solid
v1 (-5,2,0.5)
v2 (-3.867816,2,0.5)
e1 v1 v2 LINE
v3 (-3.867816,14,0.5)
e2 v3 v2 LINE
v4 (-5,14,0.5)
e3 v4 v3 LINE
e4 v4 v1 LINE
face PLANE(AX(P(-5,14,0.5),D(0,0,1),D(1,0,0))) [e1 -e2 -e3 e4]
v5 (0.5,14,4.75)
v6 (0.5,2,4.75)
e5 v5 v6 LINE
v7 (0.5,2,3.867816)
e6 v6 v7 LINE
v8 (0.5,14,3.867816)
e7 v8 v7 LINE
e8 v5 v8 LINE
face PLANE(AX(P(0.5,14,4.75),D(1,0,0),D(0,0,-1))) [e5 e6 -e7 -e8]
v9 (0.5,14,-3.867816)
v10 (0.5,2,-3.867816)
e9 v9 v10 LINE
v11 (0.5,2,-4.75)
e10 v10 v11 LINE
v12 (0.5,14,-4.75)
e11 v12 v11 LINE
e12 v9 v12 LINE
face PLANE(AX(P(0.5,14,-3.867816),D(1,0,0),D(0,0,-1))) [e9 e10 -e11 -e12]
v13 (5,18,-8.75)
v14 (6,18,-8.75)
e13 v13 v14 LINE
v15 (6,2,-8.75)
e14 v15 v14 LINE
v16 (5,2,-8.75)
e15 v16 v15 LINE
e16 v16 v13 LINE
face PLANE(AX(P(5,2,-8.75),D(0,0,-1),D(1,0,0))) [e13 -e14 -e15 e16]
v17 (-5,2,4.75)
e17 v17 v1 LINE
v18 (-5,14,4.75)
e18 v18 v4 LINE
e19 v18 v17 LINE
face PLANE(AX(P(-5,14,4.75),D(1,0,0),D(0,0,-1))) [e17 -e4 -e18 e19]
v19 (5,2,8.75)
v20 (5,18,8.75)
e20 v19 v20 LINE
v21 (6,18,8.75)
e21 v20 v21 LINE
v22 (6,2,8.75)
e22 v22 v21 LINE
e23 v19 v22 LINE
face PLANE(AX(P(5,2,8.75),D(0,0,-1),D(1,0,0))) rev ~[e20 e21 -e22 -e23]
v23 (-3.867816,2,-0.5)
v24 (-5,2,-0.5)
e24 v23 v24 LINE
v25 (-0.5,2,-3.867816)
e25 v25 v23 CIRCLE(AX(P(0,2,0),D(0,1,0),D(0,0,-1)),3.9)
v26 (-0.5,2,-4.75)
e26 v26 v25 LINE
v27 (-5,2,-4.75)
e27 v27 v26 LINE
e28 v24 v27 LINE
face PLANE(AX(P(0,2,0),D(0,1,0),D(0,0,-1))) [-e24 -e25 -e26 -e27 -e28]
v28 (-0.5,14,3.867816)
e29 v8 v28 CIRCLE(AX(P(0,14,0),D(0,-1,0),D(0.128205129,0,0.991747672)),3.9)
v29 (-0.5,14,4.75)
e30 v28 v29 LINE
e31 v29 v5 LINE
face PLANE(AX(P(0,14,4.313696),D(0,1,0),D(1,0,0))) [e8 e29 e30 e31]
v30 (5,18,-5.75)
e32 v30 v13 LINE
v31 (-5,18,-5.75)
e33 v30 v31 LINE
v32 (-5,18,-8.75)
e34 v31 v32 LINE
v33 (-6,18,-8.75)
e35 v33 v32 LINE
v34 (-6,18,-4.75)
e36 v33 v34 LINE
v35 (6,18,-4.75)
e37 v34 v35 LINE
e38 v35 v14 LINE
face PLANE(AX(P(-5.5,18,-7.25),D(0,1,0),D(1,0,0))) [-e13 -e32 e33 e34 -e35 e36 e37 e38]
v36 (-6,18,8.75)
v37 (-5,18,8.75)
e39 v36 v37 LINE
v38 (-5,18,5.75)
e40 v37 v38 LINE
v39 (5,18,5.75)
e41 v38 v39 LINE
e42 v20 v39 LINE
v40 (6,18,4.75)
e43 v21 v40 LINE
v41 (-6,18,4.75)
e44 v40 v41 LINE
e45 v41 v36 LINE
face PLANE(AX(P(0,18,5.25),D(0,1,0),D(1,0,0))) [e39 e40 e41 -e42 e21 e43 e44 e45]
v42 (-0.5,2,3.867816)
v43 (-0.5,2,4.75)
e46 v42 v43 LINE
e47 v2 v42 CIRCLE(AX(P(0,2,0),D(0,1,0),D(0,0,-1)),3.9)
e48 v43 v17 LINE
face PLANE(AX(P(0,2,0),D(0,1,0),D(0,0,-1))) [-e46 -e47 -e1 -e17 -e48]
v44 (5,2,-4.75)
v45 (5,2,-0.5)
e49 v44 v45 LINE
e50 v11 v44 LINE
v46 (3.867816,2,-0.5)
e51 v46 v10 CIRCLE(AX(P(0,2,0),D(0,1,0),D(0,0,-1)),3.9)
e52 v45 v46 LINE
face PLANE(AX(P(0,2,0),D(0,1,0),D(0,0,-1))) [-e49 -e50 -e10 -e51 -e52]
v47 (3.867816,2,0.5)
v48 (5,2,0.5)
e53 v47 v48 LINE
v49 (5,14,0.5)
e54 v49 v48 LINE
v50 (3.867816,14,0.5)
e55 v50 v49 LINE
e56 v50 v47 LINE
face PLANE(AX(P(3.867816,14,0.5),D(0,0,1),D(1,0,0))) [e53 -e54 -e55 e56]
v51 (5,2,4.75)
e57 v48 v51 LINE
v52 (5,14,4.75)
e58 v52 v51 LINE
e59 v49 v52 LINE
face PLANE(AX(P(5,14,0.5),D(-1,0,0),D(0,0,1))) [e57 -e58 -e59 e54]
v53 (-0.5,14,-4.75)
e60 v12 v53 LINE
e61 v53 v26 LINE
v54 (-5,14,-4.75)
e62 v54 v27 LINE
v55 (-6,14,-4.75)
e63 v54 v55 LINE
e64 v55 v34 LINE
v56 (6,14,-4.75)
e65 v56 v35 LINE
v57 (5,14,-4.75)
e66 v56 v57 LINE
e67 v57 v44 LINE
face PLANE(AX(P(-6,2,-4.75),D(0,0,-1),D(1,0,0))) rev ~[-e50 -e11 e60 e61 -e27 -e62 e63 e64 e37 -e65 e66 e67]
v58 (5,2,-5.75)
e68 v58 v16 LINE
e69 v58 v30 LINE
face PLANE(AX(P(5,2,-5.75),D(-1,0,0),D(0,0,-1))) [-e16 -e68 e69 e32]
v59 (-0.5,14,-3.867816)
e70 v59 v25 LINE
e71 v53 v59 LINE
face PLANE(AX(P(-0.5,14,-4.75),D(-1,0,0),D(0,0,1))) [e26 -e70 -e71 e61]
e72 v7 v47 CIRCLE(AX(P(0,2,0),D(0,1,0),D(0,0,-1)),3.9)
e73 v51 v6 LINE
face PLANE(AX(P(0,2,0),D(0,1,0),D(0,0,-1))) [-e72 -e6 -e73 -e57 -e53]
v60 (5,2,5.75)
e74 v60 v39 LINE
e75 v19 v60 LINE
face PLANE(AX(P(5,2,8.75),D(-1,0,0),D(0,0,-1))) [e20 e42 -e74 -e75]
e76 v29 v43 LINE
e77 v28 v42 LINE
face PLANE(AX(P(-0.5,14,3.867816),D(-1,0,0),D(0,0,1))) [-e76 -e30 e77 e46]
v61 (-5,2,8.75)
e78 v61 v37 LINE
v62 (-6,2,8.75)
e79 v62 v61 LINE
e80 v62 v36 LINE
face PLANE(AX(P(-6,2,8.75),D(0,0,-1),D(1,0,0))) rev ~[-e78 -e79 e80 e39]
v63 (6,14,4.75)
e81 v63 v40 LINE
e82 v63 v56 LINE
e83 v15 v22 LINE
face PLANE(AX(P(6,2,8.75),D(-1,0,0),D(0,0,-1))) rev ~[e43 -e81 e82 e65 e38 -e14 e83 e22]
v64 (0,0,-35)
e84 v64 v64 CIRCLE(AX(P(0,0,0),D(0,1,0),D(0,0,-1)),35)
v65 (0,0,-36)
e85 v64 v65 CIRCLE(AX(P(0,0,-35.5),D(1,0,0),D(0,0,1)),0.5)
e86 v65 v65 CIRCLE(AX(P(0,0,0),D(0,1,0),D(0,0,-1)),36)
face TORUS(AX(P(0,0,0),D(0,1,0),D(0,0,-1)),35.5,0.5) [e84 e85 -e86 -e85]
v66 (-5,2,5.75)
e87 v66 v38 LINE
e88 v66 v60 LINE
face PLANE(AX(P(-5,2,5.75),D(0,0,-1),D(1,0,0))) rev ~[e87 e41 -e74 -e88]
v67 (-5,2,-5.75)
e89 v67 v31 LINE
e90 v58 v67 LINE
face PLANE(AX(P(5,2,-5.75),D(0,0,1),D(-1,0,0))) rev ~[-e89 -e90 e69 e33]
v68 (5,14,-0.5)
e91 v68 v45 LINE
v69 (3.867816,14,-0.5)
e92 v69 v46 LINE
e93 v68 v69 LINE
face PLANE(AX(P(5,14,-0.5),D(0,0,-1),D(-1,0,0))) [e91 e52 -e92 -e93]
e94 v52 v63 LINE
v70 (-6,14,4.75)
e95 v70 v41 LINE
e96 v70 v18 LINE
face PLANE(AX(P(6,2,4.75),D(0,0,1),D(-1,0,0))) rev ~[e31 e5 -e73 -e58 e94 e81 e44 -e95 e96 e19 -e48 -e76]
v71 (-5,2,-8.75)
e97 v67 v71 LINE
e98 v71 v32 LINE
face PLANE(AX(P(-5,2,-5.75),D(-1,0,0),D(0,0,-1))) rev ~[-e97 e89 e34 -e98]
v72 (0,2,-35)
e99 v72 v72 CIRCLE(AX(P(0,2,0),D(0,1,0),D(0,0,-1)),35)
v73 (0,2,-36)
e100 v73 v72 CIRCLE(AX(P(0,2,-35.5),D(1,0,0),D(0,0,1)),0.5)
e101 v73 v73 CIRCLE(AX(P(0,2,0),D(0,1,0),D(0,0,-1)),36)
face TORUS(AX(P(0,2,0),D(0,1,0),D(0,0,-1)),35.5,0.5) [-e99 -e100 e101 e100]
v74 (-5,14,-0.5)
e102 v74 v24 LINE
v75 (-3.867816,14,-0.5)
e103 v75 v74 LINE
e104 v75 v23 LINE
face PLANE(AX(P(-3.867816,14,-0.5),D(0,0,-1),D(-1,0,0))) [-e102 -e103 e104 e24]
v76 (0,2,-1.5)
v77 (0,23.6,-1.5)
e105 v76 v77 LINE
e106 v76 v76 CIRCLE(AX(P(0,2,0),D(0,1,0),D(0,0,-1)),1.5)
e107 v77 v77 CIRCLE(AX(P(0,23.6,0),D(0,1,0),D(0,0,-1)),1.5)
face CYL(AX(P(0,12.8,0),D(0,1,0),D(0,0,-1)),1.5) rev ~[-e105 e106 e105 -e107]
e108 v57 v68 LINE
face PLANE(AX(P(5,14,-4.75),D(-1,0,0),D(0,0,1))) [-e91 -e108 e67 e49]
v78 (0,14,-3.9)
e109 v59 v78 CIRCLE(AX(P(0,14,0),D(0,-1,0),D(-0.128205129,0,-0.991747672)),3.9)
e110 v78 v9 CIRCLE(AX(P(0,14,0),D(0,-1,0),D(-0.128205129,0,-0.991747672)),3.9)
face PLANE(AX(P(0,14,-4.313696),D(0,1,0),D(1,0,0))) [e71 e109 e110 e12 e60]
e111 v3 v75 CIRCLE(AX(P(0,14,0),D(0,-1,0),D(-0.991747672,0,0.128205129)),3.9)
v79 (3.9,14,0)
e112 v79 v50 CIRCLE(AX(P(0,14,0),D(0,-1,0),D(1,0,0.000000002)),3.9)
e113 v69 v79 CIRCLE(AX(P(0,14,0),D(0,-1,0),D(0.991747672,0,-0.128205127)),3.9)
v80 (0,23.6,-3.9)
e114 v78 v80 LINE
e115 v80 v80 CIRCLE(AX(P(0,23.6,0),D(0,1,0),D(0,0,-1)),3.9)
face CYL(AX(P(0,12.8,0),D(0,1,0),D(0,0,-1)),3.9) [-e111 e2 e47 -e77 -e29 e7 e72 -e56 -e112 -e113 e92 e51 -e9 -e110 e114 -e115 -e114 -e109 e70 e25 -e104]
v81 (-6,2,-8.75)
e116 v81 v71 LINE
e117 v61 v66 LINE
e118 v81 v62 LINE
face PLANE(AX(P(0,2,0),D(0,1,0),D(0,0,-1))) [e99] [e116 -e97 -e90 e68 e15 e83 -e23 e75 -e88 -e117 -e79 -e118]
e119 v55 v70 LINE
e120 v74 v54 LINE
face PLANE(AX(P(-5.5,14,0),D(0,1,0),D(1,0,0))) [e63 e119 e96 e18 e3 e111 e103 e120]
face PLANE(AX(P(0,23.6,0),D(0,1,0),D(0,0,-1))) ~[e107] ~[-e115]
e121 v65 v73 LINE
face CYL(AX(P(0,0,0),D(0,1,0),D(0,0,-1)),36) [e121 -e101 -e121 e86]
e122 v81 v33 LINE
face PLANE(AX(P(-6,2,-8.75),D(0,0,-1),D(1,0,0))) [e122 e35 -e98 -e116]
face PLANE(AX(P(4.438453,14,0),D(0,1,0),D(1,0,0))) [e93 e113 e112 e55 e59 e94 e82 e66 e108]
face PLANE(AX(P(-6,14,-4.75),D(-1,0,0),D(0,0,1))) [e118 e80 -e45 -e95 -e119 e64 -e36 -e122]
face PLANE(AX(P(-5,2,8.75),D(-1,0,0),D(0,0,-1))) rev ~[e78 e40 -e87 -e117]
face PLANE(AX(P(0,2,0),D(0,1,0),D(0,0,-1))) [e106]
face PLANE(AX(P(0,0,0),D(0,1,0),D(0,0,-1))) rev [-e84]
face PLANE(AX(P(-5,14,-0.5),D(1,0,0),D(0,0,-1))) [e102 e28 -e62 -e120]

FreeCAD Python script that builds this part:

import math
import FreeCAD as App
import Part
import Sketcher

V = App.Vector


def add_polygon(sketch, points):
    """Adds a closed chain of lines whose ends are joined by coincident constraints."""
    first, n = sketch.GeometryCount, len(points)
    for a, b in zip(points, points[1:] + points[:1]):
        sketch.addGeometry(Part.LineSegment(App.Vector(*a, 0), App.Vector(*b, 0)), False)
    for i in range(n):
        sketch.addConstraint(Sketcher.Constraint("Coincident", first + i, 2, first + (i + 1) % n, 1))

doc = App.newDocument("Part")
body = doc.addObject("PartDesign::Body", "Body")

sketch1 = body.newObject("Sketcher::SketchObject", "Sketch")
sketch1.AttachmentSupport = (doc.getObject("XY_Plane"), [""])
sketch1.MapMode = "FlatFace"
sketch1.addGeometry(Part.LineSegment(V(1.5, 23.6, 0), V(1.5, 2, 0)), False)
sketch1.addGeometry(Part.LineSegment(V(1.5, 2, 0), V(0, 2, 0)), False)
sketch1.addGeometry(Part.LineSegment(V(0, 2, 0), V(0, 0, 0)), False)
sketch1.addGeometry(Part.LineSegment(V(0, 0, 0), V(35, 0, 0)), False)
sketch1.addGeometry(Part.ArcOfCircle(Part.Circle(V(35.5, 0, 0), V(0, 0, 1), 0.5), math.radians(180), math.radians(360)), False)
sketch1.addGeometry(Part.LineSegment(V(36, 0, 0), V(36, 2, 0)), False)
sketch1.addGeometry(Part.ArcOfCircle(Part.Circle(V(35.5, 2, 0), V(0, 0, 1), 0.5), math.radians(0), math.radians(180)), False)
sketch1.addGeometry(Part.LineSegment(V(35, 2, 0), V(3.9, 2, 0)), False)
sketch1.addGeometry(Part.LineSegment(V(3.9, 2, 0), V(3.9, 23.6, 0)), False)
sketch1.addGeometry(Part.LineSegment(V(3.9, 23.6, 0), V(1.5, 23.6, 0)), False)
sketch1.addConstraint(Sketcher.Constraint("Coincident", 0, 2, 1, 1))
sketch1.addConstraint(Sketcher.Constraint("Coincident", 1, 2, 2, 1))
sketch1.addConstraint(Sketcher.Constraint("Coincident", 2, 2, 3, 1))
sketch1.addConstraint(Sketcher.Constraint("Coincident", 3, 2, 4, 1))
sketch1.addConstraint(Sketcher.Constraint("Tangent", 4, 2, 5, 1))
sketch1.addConstraint(Sketcher.Constraint("Tangent", 5, 2, 6, 1))
sketch1.addConstraint(Sketcher.Constraint("Coincident", 6, 2, 7, 1))
sketch1.addConstraint(Sketcher.Constraint("Coincident", 7, 2, 8, 1))
sketch1.addConstraint(Sketcher.Constraint("Coincident", 8, 2, 9, 1))
sketch1.addConstraint(Sketcher.Constraint("Coincident", 9, 2, 0, 1))
sketch1.addConstraint(Sketcher.Constraint("Vertical", 0))
sketch1.addConstraint(Sketcher.Constraint("Horizontal", 1))
sketch1.addConstraint(Sketcher.Constraint("Vertical", 2))
sketch1.addConstraint(Sketcher.Constraint("Horizontal", 3))
sketch1.addConstraint(Sketcher.Constraint("Vertical", 5))
sketch1.addConstraint(Sketcher.Constraint("Horizontal", 7))
sketch1.addConstraint(Sketcher.Constraint("Vertical", 8))
sketch1.addConstraint(Sketcher.Constraint("Horizontal", 9))
sketch1.addConstraint(Sketcher.Constraint("Coincident", 2, 2, -1, 1))
sketch1.addConstraint(Sketcher.Constraint("Equal", 4, 6))
sketch1.addConstraint(Sketcher.Constraint("PointOnObject", 4, 3, -1))
sketch1.addConstraint(Sketcher.Constraint("Horizontal", 6, 3, 0, 2))
sketch1.addConstraint(Sketcher.Constraint("Horizontal", 5, 2, 6, 2))
sketch1.addConstraint(Sketcher.Constraint("Radius", 4, 0.5))
sketch1.addConstraint(Sketcher.Constraint("DistanceX", 3, 1, 3, 2, 35.0))
sketch1.addConstraint(Sketcher.Constraint("DistanceY", 2, 2, 2, 1, 2.0))
sketch1.addConstraint(Sketcher.Constraint("DistanceX", 1, 2, 1, 1, 1.5))
sketch1.addConstraint(Sketcher.Constraint("DistanceX", 7, 2, 7, 1, 31.1))
sketch1.addConstraint(Sketcher.Constraint("DistanceY", 0, 2, 0, 1, 21.6))
revolution = body.newObject("PartDesign::Revolution", "Revolution")
revolution.Profile = sketch1
revolution.ReferenceAxis = (sketch1, ["V_Axis"])
revolution.Angle = 360

sketch2 = body.newObject("Sketcher::SketchObject", "Sketch001")
sketch2.AttachmentSupport = (doc.getObject("XZ_Plane"), [""])
sketch2.MapMode = "FlatFace"
sketch2.AttachmentOffset = App.Placement(V(0, 0, -2), App.Rotation())
add_polygon(sketch2, [(-6, -8.8), (-6, -4.8), (6, -4.8), (6, -8.8), (5, -8.8), (5, -5.8), (-5, -5.8), (-5, -8.8)])
add_polygon(sketch2, [(-6, 4.8), (-6, 8.8), (-5, 8.8), (-5, 5.8), (5, 5.8), (5, 8.8), (6, 8.8), (6, 4.8)])
sketch2.addConstraint(Sketcher.Constraint("Vertical", 0))
sketch2.addConstraint(Sketcher.Constraint("Horizontal", 1))
sketch2.addConstraint(Sketcher.Constraint("Vertical", 2))
sketch2.addConstraint(Sketcher.Constraint("Horizontal", 3))
sketch2.addConstraint(Sketcher.Constraint("Vertical", 4))
sketch2.addConstraint(Sketcher.Constraint("Horizontal", 5))
sketch2.addConstraint(Sketcher.Constraint("Vertical", 6))
sketch2.addConstraint(Sketcher.Constraint("Horizontal", 7))
sketch2.addConstraint(Sketcher.Constraint("Vertical", 8))
sketch2.addConstraint(Sketcher.Constraint("Horizontal", 9))
sketch2.addConstraint(Sketcher.Constraint("Vertical", 10))
sketch2.addConstraint(Sketcher.Constraint("Horizontal", 11))
sketch2.addConstraint(Sketcher.Constraint("Vertical", 12))
sketch2.addConstraint(Sketcher.Constraint("Horizontal", 13))
sketch2.addConstraint(Sketcher.Constraint("Vertical", 14))
sketch2.addConstraint(Sketcher.Constraint("Horizontal", 15))
sketch2.addConstraint(Sketcher.Constraint("Symmetric", 2, 2, 8, 2, -1, 1))
sketch2.addConstraint(Sketcher.Constraint("Symmetric", 4, 2, 10, 2, -1, 1))
sketch2.addConstraint(Sketcher.Constraint("Symmetric", 6, 2, 12, 2, -1, 1))
sketch2.addConstraint(Sketcher.Constraint("Symmetric", 0, 2, 14, 2, -1, 1))
sketch2.addConstraint(Sketcher.Constraint("Symmetric", 3, 2, 6, 2, -2))
sketch2.addConstraint(Sketcher.Constraint("Vertical", 7, 2, 8, 2))
sketch2.addConstraint(Sketcher.Constraint("DistanceX", 1, 1, 1, 2, 12.0))
sketch2.addConstraint(Sketcher.Constraint("DistanceX", 3, 2, 3, 1, 1.0))
sketch2.addConstraint(Sketcher.Constraint("DistanceY", 0, 1, 0, 2, 4.0))
sketch2.addConstraint(Sketcher.Constraint("DistanceY", 4, 1, 4, 2, 3.0))
sketch2.addConstraint(Sketcher.Constraint("DistanceY", 0, 2, 8, 2, 13.5))
pad1 = body.newObject("PartDesign::Pad", "Pad")
pad1.Profile = sketch2
pad1.Length = 16
pad1.Reversed = True

sketch3 = body.newObject("Sketcher::SketchObject", "Sketch002")
sketch3.AttachmentSupport = (doc.getObject("XZ_Plane"), [""])
sketch3.MapMode = "FlatFace"
sketch3.AttachmentOffset = App.Placement(V(0, 0, -14), App.Rotation())
sketch3.addGeometry(Part.LineSegment(V(-5, -4.8, 0), V(-6, -4.8, 0)), False)
sketch3.addGeometry(Part.LineSegment(V(-6, -4.8, 0), V(-6, 4.8, 0)), False)
sketch3.addGeometry(Part.LineSegment(V(-6, 4.8, 0), V(-5, 4.8, 0)), False)
sketch3.addGeometry(Part.LineSegment(V(-5, 4.8, 0), V(-5, 0.5, 0)), False)
sketch3.addGeometry(Part.LineSegment(V(-5, 0.5, 0), V(-3.9, 0.5, 0)), False)
sketch3.addGeometry(Part.ArcOfCircle(Part.Circle(V(0, 0, 0), V(0, 0, 1), 3.9), math.radians(172.63), math.radians(187.37)), False)
sketch3.addGeometry(Part.LineSegment(V(-3.9, -0.5, 0), V(-5, -0.5, 0)), False)
sketch3.addGeometry(Part.LineSegment(V(-5, -0.5, 0), V(-5, -4.8, 0)), False)
sketch3.addGeometry(Part.ArcOfCircle(Part.Circle(V(0, 0, 0), V(0, 0, 1), 3.9), math.radians(82.63), math.radians(97.37)), False)
sketch3.addGeometry(Part.LineSegment(V(-0.5, 3.9, 0), V(-0.5, 4.8, 0)), False)
sketch3.addGeometry(Part.LineSegment(V(-0.5, 4.8, 0), V(0.5, 4.8, 0)), False)
sketch3.addGeometry(Part.LineSegment(V(0.5, 4.8, 0), V(0.5, 3.9, 0)), False)
sketch3.addGeometry(Part.LineSegment(V(-0.5, -4.8, 0), V(-0.5, -3.9, 0)), False)
sketch3.addGeometry(Part.ArcOfCircle(Part.Circle(V(0, 0, 0), V(0, 0, 1), 3.9), math.radians(-97.37), math.radians(-82.63)), False)
sketch3.addGeometry(Part.LineSegment(V(0.5, -3.9, 0), V(0.5, -4.8, 0)), False)
sketch3.addGeometry(Part.LineSegment(V(0.5, -4.8, 0), V(-0.5, -4.8, 0)), False)
sketch3.addGeometry(Part.LineSegment(V(5, -0.5, 0), V(3.9, -0.5, 0)), False)
sketch3.addGeometry(Part.ArcOfCircle(Part.Circle(V(0, 0, 0), V(0, 0, 1), 3.9), math.radians(-7.37), math.radians(0)), False)
sketch3.addGeometry(Part.ArcOfCircle(Part.Circle(V(0, 0, 0), V(0, 0, 1), 3.9), math.radians(0), math.radians(7.37)), False)
sketch3.addGeometry(Part.LineSegment(V(3.9, 0.5, 0), V(5, 0.5, 0)), False)
sketch3.addGeometry(Part.LineSegment(V(5, 0.5, 0), V(5, 4.8, 0)), False)
sketch3.addGeometry(Part.LineSegment(V(5, 4.8, 0), V(6, 4.8, 0)), False)
sketch3.addGeometry(Part.LineSegment(V(6, 4.8, 0), V(6, -4.8, 0)), False)
sketch3.addGeometry(Part.LineSegment(V(6, -4.8, 0), V(5, -4.8, 0)), False)
sketch3.addGeometry(Part.LineSegment(V(5, -4.8, 0), V(5, -0.5, 0)), False)
sketch3.addConstraint(Sketcher.Constraint("Coincident", 0, 2, 1, 1))
sketch3.addConstraint(Sketcher.Constraint("Coincident", 1, 2, 2, 1))
sketch3.addConstraint(Sketcher.Constraint("Coincident", 2, 2, 3, 1))
sketch3.addConstraint(Sketcher.Constraint("Coincident", 3, 2, 4, 1))
sketch3.addConstraint(Sketcher.Constraint("Coincident", 4, 2, 5, 1))
sketch3.addConstraint(Sketcher.Constraint("Coincident", 5, 2, 6, 1))
sketch3.addConstraint(Sketcher.Constraint("Coincident", 6, 2, 7, 1))
sketch3.addConstraint(Sketcher.Constraint("Coincident", 7, 2, 0, 1))
sketch3.addConstraint(Sketcher.Constraint("Coincident", 8, 2, 9, 1))
sketch3.addConstraint(Sketcher.Constraint("Coincident", 9, 2, 10, 1))
sketch3.addConstraint(Sketcher.Constraint("Coincident", 10, 2, 11, 1))
sketch3.addConstraint(Sketcher.Constraint("Coincident", 11, 2, 8, 1))
sketch3.addConstraint(Sketcher.Constraint("Coincident", 12, 2, 13, 1))
sketch3.addConstraint(Sketcher.Constraint("Coincident", 13, 2, 14, 1))
sketch3.addConstraint(Sketcher.Constraint("Coincident", 14, 2, 15, 1))
sketch3.addConstraint(Sketcher.Constraint("Coincident", 15, 2, 12, 1))
sketch3.addConstraint(Sketcher.Constraint("Coincident", 16, 2, 17, 1))
sketch3.addConstraint(Sketcher.Constraint("Tangent", 17, 2, 18, 1))
sketch3.addConstraint(Sketcher.Constraint("Coincident", 18, 2, 19, 1))
sketch3.addConstraint(Sketcher.Constraint("Coincident", 19, 2, 20, 1))
sketch3.addConstraint(Sketcher.Constraint("Coincident", 20, 2, 21, 1))
sketch3.addConstraint(Sketcher.Constraint("Coincident", 21, 2, 22, 1))
sketch3.addConstraint(Sketcher.Constraint("Coincident", 22, 2, 23, 1))
sketch3.addConstraint(Sketcher.Constraint("Coincident", 23, 2, 24, 1))
sketch3.addConstraint(Sketcher.Constraint("Coincident", 24, 2, 16, 1))
sketch3.addConstraint(Sketcher.Constraint("Horizontal", 0))
sketch3.addConstraint(Sketcher.Constraint("Vertical", 1))
sketch3.addConstraint(Sketcher.Constraint("Horizontal", 2))
sketch3.addConstraint(Sketcher.Constraint("Vertical", 3))
sketch3.addConstraint(Sketcher.Constraint("Horizontal", 4))
sketch3.addConstraint(Sketcher.Constraint("Horizontal", 6))
sketch3.addConstraint(Sketcher.Constraint("Vertical", 7))
sketch3.addConstraint(Sketcher.Constraint("Vertical", 9))
sketch3.addConstraint(Sketcher.Constraint("Horizontal", 10))
sketch3.addConstraint(Sketcher.Constraint("Vertical", 11))
sketch3.addConstraint(Sketcher.Constraint("Vertical", 12))
sketch3.addConstraint(Sketcher.Constraint("Vertical", 14))
sketch3.addConstraint(Sketcher.Constraint("Horizontal", 15))
sketch3.addConstraint(Sketcher.Constraint("Horizontal", 16))
sketch3.addConstraint(Sketcher.Constraint("Horizontal", 19))
sketch3.addConstraint(Sketcher.Constraint("Vertical", 20))
sketch3.addConstraint(Sketcher.Constraint("Horizontal", 21))
sketch3.addConstraint(Sketcher.Constraint("Vertical", 22))
sketch3.addConstraint(Sketcher.Constraint("Horizontal", 23))
sketch3.addConstraint(Sketcher.Constraint("Vertical", 24))
sketch3.addConstraint(Sketcher.Constraint("Coincident", 5, 3, -1, 1))
sketch3.addConstraint(Sketcher.Constraint("Coincident", 8, 3, -1, 1))
sketch3.addConstraint(Sketcher.Constraint("Coincident", 13, 3, -1, 1))
sketch3.addConstraint(Sketcher.Constraint("Coincident", 17, 3, -1, 1))
sketch3.addConstraint(Sketcher.Constraint("Equal", 5, 8))
sketch3.addConstraint(Sketcher.Constraint("Equal", 8, 13))
sketch3.addConstraint(Sketcher.Constraint("Equal", 13, 17))
sketch3.addConstraint(Sketcher.Constraint("Equal", 17, 18))
sketch3.addConstraint(Sketcher.Constraint("Symmetric", 9, 2, 14, 2, -1, 1))
sketch3.addConstraint(Sketcher.Constraint("Symmetric", 6, 2, 19, 2, -1, 1))
sketch3.addConstraint(Sketcher.Constraint("Symmetric", 0, 2, 21, 2, -1, 1))
sketch3.addConstraint(Sketcher.Constraint("Symmetric", 2, 2, 23, 2, -1, 1))
sketch3.addConstraint(Sketcher.Constraint("Symmetric", 3, 2, 19, 2, -2))
sketch3.addConstraint(Sketcher.Constraint("PointOnObject", 17, 2, -1))
sketch3.addConstraint(Sketcher.Constraint("Horizontal", 2, 2, 9, 2))
sketch3.addConstraint(Sketcher.Constraint("Horizontal", 8, 2, 11, 2))
sketch3.addConstraint(Sketcher.Constraint("Horizontal", 12, 2, 13, 2))
sketch3.addConstraint(Sketcher.Constraint("Horizontal", 7, 2, 14, 2))
sketch3.addConstraint(Sketcher.Constraint("Horizontal", 6, 2, 16, 2))
sketch3.addConstraint(Sketcher.Constraint("Equal", 2, 10))
sketch3.addConstraint(Sketcher.Constraint("Radius", 5, 3.9))
sketch3.addConstraint(Sketcher.Constraint("DistanceX", 0, 2, 0, 1, 1.0))
sketch3.addConstraint(Sketcher.Constraint("DistanceY", 1, 1, 1, 2, 9.5))
sketch3.addConstraint(Sketcher.Constraint("DistanceX", 0, 2, -1, 1, 6.0))
sketch3.addConstraint(Sketcher.Constraint("DistanceY", 5, 2, 4, 2, 1.0))
pad2 = body.newObject("PartDesign::Pad", "Pad001")
pad2.Profile = sketch3
pad2.Length = 12

doc.recompute()
